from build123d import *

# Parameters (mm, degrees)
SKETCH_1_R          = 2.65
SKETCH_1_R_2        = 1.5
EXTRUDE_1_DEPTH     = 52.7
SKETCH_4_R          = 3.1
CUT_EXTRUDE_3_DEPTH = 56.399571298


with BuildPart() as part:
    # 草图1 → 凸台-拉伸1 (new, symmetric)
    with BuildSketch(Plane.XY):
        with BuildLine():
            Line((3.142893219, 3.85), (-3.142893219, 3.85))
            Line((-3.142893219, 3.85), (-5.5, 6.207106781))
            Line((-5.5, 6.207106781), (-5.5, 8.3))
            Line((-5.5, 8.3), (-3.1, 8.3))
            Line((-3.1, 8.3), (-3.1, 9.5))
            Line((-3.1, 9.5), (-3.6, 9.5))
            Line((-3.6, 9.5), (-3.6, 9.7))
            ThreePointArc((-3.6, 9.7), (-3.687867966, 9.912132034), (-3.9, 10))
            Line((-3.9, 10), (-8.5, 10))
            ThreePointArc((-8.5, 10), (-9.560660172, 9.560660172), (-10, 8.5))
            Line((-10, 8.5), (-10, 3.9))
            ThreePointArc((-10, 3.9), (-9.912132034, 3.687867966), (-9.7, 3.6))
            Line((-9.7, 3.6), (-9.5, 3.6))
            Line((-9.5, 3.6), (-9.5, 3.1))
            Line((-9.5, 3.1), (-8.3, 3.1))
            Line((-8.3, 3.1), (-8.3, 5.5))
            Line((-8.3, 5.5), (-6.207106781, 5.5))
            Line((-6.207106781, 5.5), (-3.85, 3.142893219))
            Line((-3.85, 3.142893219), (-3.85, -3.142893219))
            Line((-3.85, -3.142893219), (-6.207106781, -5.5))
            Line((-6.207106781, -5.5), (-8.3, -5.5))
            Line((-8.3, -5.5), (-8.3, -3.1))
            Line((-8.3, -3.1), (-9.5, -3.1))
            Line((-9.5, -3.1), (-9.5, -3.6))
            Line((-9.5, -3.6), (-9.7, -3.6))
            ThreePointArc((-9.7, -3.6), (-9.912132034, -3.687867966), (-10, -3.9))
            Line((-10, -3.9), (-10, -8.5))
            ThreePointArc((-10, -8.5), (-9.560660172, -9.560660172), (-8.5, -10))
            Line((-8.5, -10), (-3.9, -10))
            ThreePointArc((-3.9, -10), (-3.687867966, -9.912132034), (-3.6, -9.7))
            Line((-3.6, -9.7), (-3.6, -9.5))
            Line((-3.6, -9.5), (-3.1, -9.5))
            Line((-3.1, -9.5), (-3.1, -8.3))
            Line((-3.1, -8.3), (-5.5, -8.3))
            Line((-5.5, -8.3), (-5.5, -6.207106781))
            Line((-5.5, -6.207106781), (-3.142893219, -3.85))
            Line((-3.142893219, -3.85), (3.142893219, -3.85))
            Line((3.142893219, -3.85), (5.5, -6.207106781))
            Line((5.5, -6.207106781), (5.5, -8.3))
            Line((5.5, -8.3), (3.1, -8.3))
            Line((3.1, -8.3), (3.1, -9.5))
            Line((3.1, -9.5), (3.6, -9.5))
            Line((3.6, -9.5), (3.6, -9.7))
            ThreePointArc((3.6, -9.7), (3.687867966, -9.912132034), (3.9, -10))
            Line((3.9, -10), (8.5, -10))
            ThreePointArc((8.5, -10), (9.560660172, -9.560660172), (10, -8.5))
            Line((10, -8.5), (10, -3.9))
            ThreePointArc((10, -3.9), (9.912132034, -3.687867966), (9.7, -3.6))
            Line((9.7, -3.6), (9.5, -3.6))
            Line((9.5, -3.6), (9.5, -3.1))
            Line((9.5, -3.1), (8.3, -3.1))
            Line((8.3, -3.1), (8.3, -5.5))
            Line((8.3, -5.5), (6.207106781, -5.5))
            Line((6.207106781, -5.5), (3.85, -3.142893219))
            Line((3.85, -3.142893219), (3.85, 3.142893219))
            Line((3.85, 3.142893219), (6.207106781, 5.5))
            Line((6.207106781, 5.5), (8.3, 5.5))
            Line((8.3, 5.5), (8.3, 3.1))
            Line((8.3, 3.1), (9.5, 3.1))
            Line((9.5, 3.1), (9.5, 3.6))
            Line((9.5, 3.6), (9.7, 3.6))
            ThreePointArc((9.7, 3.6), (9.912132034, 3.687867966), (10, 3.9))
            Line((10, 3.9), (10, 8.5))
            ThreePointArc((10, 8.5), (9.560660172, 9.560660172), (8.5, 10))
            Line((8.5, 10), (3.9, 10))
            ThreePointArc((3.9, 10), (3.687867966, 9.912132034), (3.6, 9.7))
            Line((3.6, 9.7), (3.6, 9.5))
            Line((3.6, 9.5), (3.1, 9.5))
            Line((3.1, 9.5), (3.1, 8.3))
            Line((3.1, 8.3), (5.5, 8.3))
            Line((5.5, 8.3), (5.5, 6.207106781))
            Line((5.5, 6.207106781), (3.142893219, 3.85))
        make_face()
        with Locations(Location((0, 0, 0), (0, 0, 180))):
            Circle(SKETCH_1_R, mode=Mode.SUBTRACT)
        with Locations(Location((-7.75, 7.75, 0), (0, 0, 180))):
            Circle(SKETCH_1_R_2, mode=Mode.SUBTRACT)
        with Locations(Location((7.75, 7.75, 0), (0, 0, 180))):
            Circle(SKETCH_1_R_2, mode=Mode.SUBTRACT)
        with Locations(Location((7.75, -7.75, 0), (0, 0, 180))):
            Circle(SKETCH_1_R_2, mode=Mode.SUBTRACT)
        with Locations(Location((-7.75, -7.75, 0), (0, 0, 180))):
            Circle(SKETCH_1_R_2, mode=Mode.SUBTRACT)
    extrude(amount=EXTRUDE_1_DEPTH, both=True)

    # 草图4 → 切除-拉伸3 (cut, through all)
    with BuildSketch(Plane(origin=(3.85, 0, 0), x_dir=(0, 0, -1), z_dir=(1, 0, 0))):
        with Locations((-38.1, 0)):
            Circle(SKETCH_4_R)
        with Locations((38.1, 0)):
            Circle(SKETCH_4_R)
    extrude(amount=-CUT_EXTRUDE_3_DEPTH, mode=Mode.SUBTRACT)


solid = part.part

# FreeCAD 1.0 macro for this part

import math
import FreeCAD as App
import Part
import Sketcher

V = App.Vector

doc = App.newDocument("Part")
body = doc.addObject("PartDesign::Body", "Body")

# Sketch on XY plane
sketch1 = doc.addObject("Sketcher::SketchObject", "Sketch")
body.addObject(sketch1)
sketch1.AttachmentSupport = (doc.XY_Plane, [""])
sketch1.MapMode = "FlatFace"
sketch1.addGeometry(Part.LineSegment(V(3.14, 3.85, 0), V(-3.14, 3.85, 0)), False)
sketch1.addGeometry(Part.LineSegment(V(-3.14, 3.85, 0), V(-5.5, 6.21, 0)), False)
sketch1.addGeometry(Part.LineSegment(V(-5.5, 6.21, 0), V(-5.5, 8.3, 0)), False)
sketch1.addGeometry(Part.LineSegment(V(-5.5, 8.3, 0), V(-3.1, 8.3, 0)), False)
sketch1.addGeometry(Part.LineSegment(V(-3.1, 8.3, 0), V(-3.1, 9.5, 0)), False)
sketch1.addGeometry(Part.LineSegment(V(-3.1, 9.5, 0), V(-3.6, 9.5, 0)), False)
sketch1.addGeometry(Part.LineSegment(V(-3.6, 9.5, 0), V(-3.6, 9.7, 0)), False)
sketch1.addGeometry(Part.ArcOfCircle(Part.Circle(V(-3.9, 9.7, 0), V(0, 0, 1), 0.3), math.radians(0), math.radians(90)), False)
sketch1.addGeometry(Part.LineSegment(V(-3.9, 10, 0), V(-8.5, 10, 0)), False)
sketch1.addGeometry(Part.ArcOfCircle(Part.Circle(V(-8.5, 8.5, 0), V(0, 0, 1), 1.5), math.radians(90), math.radians(180)), False)
sketch1.addGeometry(Part.LineSegment(V(-10, 8.5, 0), V(-10, 3.9, 0)), False)
sketch1.addGeometry(Part.ArcOfCircle(Part.Circle(V(-9.7, 3.9, 0), V(0, 0, 1), 0.3), math.radians(-180), math.radians(-90)), False)
sketch1.addGeometry(Part.LineSegment(V(-9.7, 3.6, 0), V(-9.5, 3.6, 0)), False)
sketch1.addGeometry(Part.LineSegment(V(-9.5, 3.6, 0), V(-9.5, 3.1, 0)), False)
sketch1.addGeometry(Part.LineSegment(V(-9.5, 3.1, 0), V(-8.3, 3.1, 0)), False)
sketch1.addGeometry(Part.LineSegment(V(-8.3, 3.1, 0), V(-8.3, 5.5, 0)), False)
sketch1.addGeometry(Part.LineSegment(V(-8.3, 5.5, 0), V(-6.21, 5.5, 0)), False)
sketch1.addGeometry(Part.LineSegment(V(-6.21, 5.5, 0), V(-3.85, 3.14, 0)), False)
sketch1.addGeometry(Part.LineSegment(V(-3.85, 3.14, 0), V(-3.85, -3.14, 0)), False)
sketch1.addGeometry(Part.LineSegment(V(-3.85, -3.14, 0), V(-6.21, -5.5, 0)), False)
sketch1.addGeometry(Part.LineSegment(V(-6.21, -5.5, 0), V(-8.3, -5.5, 0)), False)
sketch1.addGeometry(Part.LineSegment(V(-8.3, -5.5, 0), V(-8.3, -3.1, 0)), False)
sketch1.addGeometry(Part.LineSegment(V(-8.3, -3.1, 0), V(-9.5, -3.1, 0)), False)
sketch1.addGeometry(Part.LineSegment(V(-9.5, -3.1, 0), V(-9.5, -3.6, 0)), False)
sketch1.addGeometry(Part.LineSegment(V(-9.5, -3.6, 0), V(-9.7, -3.6, 0)), False)
sketch1.addGeometry(Part.ArcOfCircle(Part.Circle(V(-9.7, -3.9, 0), V(0, 0, 1), 0.3), math.radians(90), math.radians(180)), False)
sketch1.addGeometry(Part.LineSegment(V(-10, -3.9, 0), V(-10, -8.5, 0)), False)
sketch1.addGeometry(Part.ArcOfCircle(Part.Circle(V(-8.5, -8.5, 0), V(0, 0, 1), 1.5), math.radians(180), math.radians(270)), False)
sketch1.addGeometry(Part.LineSegment(V(-8.5, -10, 0), V(-3.9, -10, 0)), False)
sketch1.addGeometry(Part.ArcOfCircle(Part.Circle(V(-3.9, -9.7, 0), V(0, 0, 1), 0.3), math.radians(-90), math.radians(0)), False)
sketch1.addGeometry(Part.LineSegment(V(-3.6, -9.7, 0), V(-3.6, -9.5, 0)), False)
sketch1.addGeometry(Part.LineSegment(V(-3.6, -9.5, 0), V(-3.1, -9.5, 0)), False)
sketch1.addGeometry(Part.LineSegment(V(-3.1, -9.5, 0), V(-3.1, -8.3, 0)), False)
sketch1.addGeometry(Part.LineSegment(V(-3.1, -8.3, 0), V(-5.5, -8.3, 0)), False)
sketch1.addGeometry(Part.LineSegment(V(-5.5, -8.3, 0), V(-5.5, -6.21, 0)), False)
sketch1.addGeometry(Part.LineSegment(V(-5.5, -6.21, 0), V(-3.14, -3.85, 0)), False)
sketch1.addGeometry(Part.LineSegment(V(-3.14, -3.85, 0), V(3.14, -3.85, 0)), False)
sketch1.addGeometry(Part.LineSegment(V(3.14, -3.85, 0), V(5.5, -6.21, 0)), False)
sketch1.addGeometry(Part.LineSegment(V(5.5, -6.21, 0), V(5.5, -8.3, 0)), False)
sketch1.addGeometry(Part.LineSegment(V(5.5, -8.3, 0), V(3.1, -8.3, 0)), False)
sketch1.addGeometry(Part.LineSegment(V(3.1, -8.3, 0), V(3.1, -9.5, 0)), False)
sketch1.addGeometry(Part.LineSegment(V(3.1, -9.5, 0), V(3.6, -9.5, 0)), False)
sketch1.addGeometry(Part.LineSegment(V(3.6, -9.5, 0), V(3.6, -9.7, 0)), False)
sketch1.addGeometry(Part.ArcOfCircle(Part.Circle(V(3.9, -9.7, 0), V(0, 0, 1), 0.3), math.radians(-180), math.radians(-90)), False)
sketch1.addGeometry(Part.LineSegment(V(3.9, -10, 0), V(8.5, -10, 0)), False)
sketch1.addGeometry(Part.ArcOfCircle(Part.Circle(V(8.5, -8.5, 0), V(0, 0, 1), 1.5), math.radians(-90), math.radians(0)), False)
sketch1.addGeometry(Part.LineSegment(V(10, -8.5, 0), V(10, -3.9, 0)), False)
sketch1.addGeometry(Part.ArcOfCircle(Part.Circle(V(9.7, -3.9, 0), V(0, 0, 1), 0.3), math.radians(0), math.radians(90)), False)
sketch1.addGeometry(Part.LineSegment(V(9.7, -3.6, 0), V(9.5, -3.6, 0)), False)
sketch1.addGeometry(Part.LineSegment(V(9.5, -3.6, 0), V(9.5, -3.1, 0)), False)
sketch1.addGeometry(Part.LineSegment(V(9.5, -3.1, 0), V(8.3, -3.1, 0)), False)
sketch1.addGeometry(Part.LineSegment(V(8.3, -3.1, 0), V(8.3, -5.5, 0)), False)
sketch1.addGeometry(Part.LineSegment(V(8.3, -5.5, 0), V(6.21, -5.5, 0)), False)
sketch1.addGeometry(Part.LineSegment(V(6.21, -5.5, 0), V(3.85, -3.14, 0)), False)
sketch1.addGeometry(Part.LineSegment(V(3.85, -3.14, 0), V(3.85, 3.14, 0)), False)
sketch1.addGeometry(Part.LineSegment(V(3.85, 3.14, 0), V(6.21, 5.5, 0)), False)
sketch1.addGeometry(Part.LineSegment(V(6.21, 5.5, 0), V(8.3, 5.5, 0)), False)
sketch1.addGeometry(Part.LineSegment(V(8.3, 5.5, 0), V(8.3, 3.1, 0)), False)
sketch1.addGeometry(Part.LineSegment(V(8.3, 3.1, 0), V(9.5, 3.1, 0)), False)
sketch1.addGeometry(Part.LineSegment(V(9.5, 3.1, 0), V(9.5, 3.6, 0)), False)
sketch1.addGeometry(Part.LineSegment(V(9.5, 3.6, 0), V(9.7, 3.6, 0)), False)
sketch1.addGeometry(Part.ArcOfCircle(Part.Circle(V(9.7, 3.9, 0), V(0, 0, 1), 0.3), math.radians(-90), math.radians(0)), False)
sketch1.addGeometry(Part.LineSegment(V(10, 3.9, 0), V(10, 8.5, 0)), False)
sketch1.addGeometry(Part.ArcOfCircle(Part.Circle(V(8.5, 8.5, 0), V(0, 0, 1), 1.5), math.radians(0), math.radians(90)), False)
sketch1.addGeometry(Part.LineSegment(V(8.5, 10, 0), V(3.9, 10, 0)), False)
sketch1.addGeometry(Part.ArcOfCircle(Part.Circle(V(3.9, 9.7, 0), V(0, 0, 1), 0.3), math.radians(90), math.radians(180)), False)
sketch1.addGeometry(Part.LineSegment(V(3.6, 9.7, 0), V(3.6, 9.5, 0)), False)
sketch1.addGeometry(Part.LineSegment(V(3.6, 9.5, 0), V(3.1, 9.5, 0)), False)
sketch1.addGeometry(Part.LineSegment(V(3.1, 9.5, 0), V(3.1, 8.3, 0)), False)
sketch1.addGeometry(Part.LineSegment(V(3.1, 8.3, 0), V(5.5, 8.3, 0)), False)
sketch1.addGeometry(Part.LineSegment(V(5.5, 8.3, 0), V(5.5, 6.21, 0)), False)
sketch1.addGeometry(Part.LineSegment(V(5.5, 6.21, 0), V(3.14, 3.85, 0)), False)
sketch1.addGeometry(Part.Circle(V(-7.75, -7.75, 0), V(0, 0, 1), 1.5), False)
sketch1.addGeometry(Part.Circle(V(7.75, -7.75, 0), V(0, 0, 1), 1.5), False)
sketch1.addGeometry(Part.Circle(V(-7.75, 7.75, 0), V(0, 0, 1), 1.5), False)
sketch1.addGeometry(Part.Circle(V(0, 0, 0), V(0, 0, 1), 2.65), False)
sketch1.addGeometry(Part.Circle(V(7.75, 7.75, 0), V(0, 0, 1), 1.5), False)
sketch1.addConstraint(Sketcher.Constraint("Coincident", 0, 2, 1, 1))
sketch1.addConstraint(Sketcher.Constraint("Coincident", 1, 2, 2, 1))
sketch1.addConstraint(Sketcher.Constraint("Coincident", 2, 2, 3, 1))
sketch1.addConstraint(Sketcher.Constraint("Coincident", 3, 2, 4, 1))
sketch1.addConstraint(Sketcher.Constraint("Coincident", 4, 2, 5, 1))
sketch1.addConstraint(Sketcher.Constraint("Coincident", 5, 2, 6, 1))
sketch1.addConstraint(Sketcher.Constraint("Tangent", 6, 2, 7, 1))
sketch1.addConstraint(Sketcher.Constraint("Tangent", 7, 2, 8, 1))
sketch1.addConstraint(Sketcher.Constraint("Tangent", 8, 2, 9, 1))
sketch1.addConstraint(Sketcher.Constraint("Tangent", 9, 2, 10, 1))
sketch1.addConstraint(Sketcher.Constraint("Tangent", 10, 2, 11, 1))
sketch1.addConstraint(Sketcher.Constraint("Tangent", 11, 2, 12, 1))
sketch1.addConstraint(Sketcher.Constraint("Coincident", 12, 2, 13, 1))
sketch1.addConstraint(Sketcher.Constraint("Coincident", 13, 2, 14, 1))
sketch1.addConstraint(Sketcher.Constraint("Coincident", 14, 2, 15, 1))
sketch1.addConstraint(Sketcher.Constraint("Coincident", 15, 2, 16, 1))
sketch1.addConstraint(Sketcher.Constraint("Coincident", 16, 2, 17, 1))
sketch1.addConstraint(Sketcher.Constraint("Coincident", 17, 2, 18, 1))
sketch1.addConstraint(Sketcher.Constraint("Coincident", 18, 2, 19, 1))
sketch1.addConstraint(Sketcher.Constraint("Coincident", 19, 2, 20, 1))
sketch1.addConstraint(Sketcher.Constraint("Coincident", 20, 2, 21, 1))
sketch1.addConstraint(Sketcher.Constraint("Coincident", 21, 2, 22, 1))
sketch1.addConstraint(Sketcher.Constraint("Coincident", 22, 2, 23, 1))
sketch1.addConstraint(Sketcher.Constraint("Coincident", 23, 2, 24, 1))
sketch1.addConstraint(Sketcher.Constraint("Tangent", 24, 2, 25, 1))
sketch1.addConstraint(Sketcher.Constraint("Tangent", 25, 2, 26, 1))
sketch1.addConstraint(Sketcher.Constraint("Tangent", 26, 2, 27, 1))
sketch1.addConstraint(Sketcher.Constraint("Tangent", 27, 2, 28, 1))
sketch1.addConstraint(Sketcher.Constraint("Tangent", 28, 2, 29, 1))
sketch1.addConstraint(Sketcher.Constraint("Tangent", 29, 2, 30, 1))
sketch1.addConstraint(Sketcher.Constraint("Coincident", 30, 2, 31, 1))
sketch1.addConstraint(Sketcher.Constraint("Coincident", 31, 2, 32, 1))
sketch1.addConstraint(Sketcher.Constraint("Coincident", 32, 2, 33, 1))
sketch1.addConstraint(Sketcher.Constraint("Coincident", 33, 2, 34, 1))
sketch1.addConstraint(Sketcher.Constraint("Coincident", 34, 2, 35, 1))
sketch1.addConstraint(Sketcher.Constraint("Coincident", 35, 2, 36, 1))
sketch1.addConstraint(Sketcher.Constraint("Coincident", 36, 2, 37, 1))
sketch1.addConstraint(Sketcher.Constraint("Coincident", 37, 2, 38, 1))
sketch1.addConstraint(Sketcher.Constraint("Coincident", 38, 2, 39, 1))
sketch1.addConstraint(Sketcher.Constraint("Coincident", 39, 2, 40, 1))
sketch1.addConstraint(Sketcher.Constraint("Coincident", 40, 2, 41, 1))
sketch1.addConstraint(Sketcher.Constraint("Coincident", 41, 2, 42, 1))
sketch1.addConstraint(Sketcher.Constraint("Tangent", 42, 2, 43, 1))
sketch1.addConstraint(Sketcher.Constraint("Tangent", 43, 2, 44, 1))
sketch1.addConstraint(Sketcher.Constraint("Tangent", 44, 2, 45, 1))
sketch1.addConstraint(Sketcher.Constraint("Tangent", 45, 2, 46, 1))
sketch1.addConstraint(Sketcher.Constraint("Tangent", 46, 2, 47, 1))
sketch1.addConstraint(Sketcher.Constraint("Tangent", 47, 2, 48, 1))
sketch1.addConstraint(Sketcher.Constraint("Coincident", 48, 2, 49, 1))
sketch1.addConstraint(Sketcher.Constraint("Coincident", 49, 2, 50, 1))
sketch1.addConstraint(Sketcher.Constraint("Coincident", 50, 2, 51, 1))
sketch1.addConstraint(Sketcher.Constraint("Coincident", 51, 2, 52, 1))
sketch1.addConstraint(Sketcher.Constraint("Coincident", 52, 2, 53, 1))
sketch1.addConstraint(Sketcher.Constraint("Coincident", 53, 2, 54, 1))
sketch1.addConstraint(Sketcher.Constraint("Coincident", 54, 2, 55, 1))
sketch1.addConstraint(Sketcher.Constraint("Coincident", 55, 2, 56, 1))
sketch1.addConstraint(Sketcher.Constraint("Coincident", 56, 2, 57, 1))
sketch1.addConstraint(Sketcher.Constraint("Coincident", 57, 2, 58, 1))
sketch1.addConstraint(Sketcher.Constraint("Coincident", 58, 2, 59, 1))
sketch1.addConstraint(Sketcher.Constraint("Coincident", 59, 2, 60, 1))
sketch1.addConstraint(Sketcher.Constraint("Tangent", 60, 2, 61, 1))
sketch1.addConstraint(Sketcher.Constraint("Tangent", 61, 2, 62, 1))
sketch1.addConstraint(Sketcher.Constraint("Tangent", 62, 2, 63, 1))
sketch1.addConstraint(Sketcher.Constraint("Tangent", 63, 2, 64, 1))
sketch1.addConstraint(Sketcher.Constraint("Tangent", 64, 2, 65, 1))
sketch1.addConstraint(Sketcher.Constraint("Tangent", 65, 2, 66, 1))
sketch1.addConstraint(Sketcher.Constraint("Coincident", 66, 2, 67, 1))
sketch1.addConstraint(Sketcher.Constraint("Coincident", 67, 2, 68, 1))
sketch1.addConstraint(Sketcher.Constraint("Coincident", 68, 2, 69, 1))
sketch1.addConstraint(Sketcher.Constraint("Coincident", 69, 2, 70, 1))
sketch1.addConstraint(Sketcher.Constraint("Coincident", 70, 2, 71, 1))
sketch1.addConstraint(Sketcher.Constraint("Coincident", 71, 2, 0, 1))
sketch1.addConstraint(Sketcher.Constraint("Horizontal", 0))
sketch1.addConstraint(Sketcher.Constraint("Vertical", 2))
sketch1.addConstraint(Sketcher.Constraint("Horizontal", 3))
sketch1.addConstraint(Sketcher.Constraint("Vertical", 4))
sketch1.addConstraint(Sketcher.Constraint("Horizontal", 5))
sketch1.addConstraint(Sketcher.Constraint("Vertical", 6))
sketch1.addConstraint(Sketcher.Constraint("Horizontal", 8))
sketch1.addConstraint(Sketcher.Constraint("Vertical", 10))
sketch1.addConstraint(Sketcher.Constraint("Horizontal", 12))
sketch1.addConstraint(Sketcher.Constraint("Vertical", 13))
sketch1.addConstraint(Sketcher.Constraint("Horizontal", 14))
sketch1.addConstraint(Sketcher.Constraint("Vertical", 15))
sketch1.addConstraint(Sketcher.Constraint("Horizontal", 16))
sketch1.addConstraint(Sketcher.Constraint("Vertical", 18))
sketch1.addConstraint(Sketcher.Constraint("Horizontal", 20))
sketch1.addConstraint(Sketcher.Constraint("Vertical", 21))
sketch1.addConstraint(Sketcher.Constraint("Horizontal", 22))
sketch1.addConstraint(Sketcher.Constraint("Vertical", 23))
sketch1.addConstraint(Sketcher.Constraint("Horizontal", 24))
sketch1.addConstraint(Sketcher.Constraint("Vertical", 26))
sketch1.addConstraint(Sketcher.Constraint("Horizontal", 28))
sketch1.addConstraint(Sketcher.Constraint("Vertical", 30))
sketch1.addConstraint(Sketcher.Constraint("Horizontal", 31))
sketch1.addConstraint(Sketcher.Constraint("Vertical", 32))
sketch1.addConstraint(Sketcher.Constraint("Horizontal", 33))
sketch1.addConstraint(Sketcher.Constraint("Vertical", 34))
sketch1.addConstraint(Sketcher.Constraint("Horizontal", 36))
sketch1.addConstraint(Sketcher.Constraint("Vertical", 38))
sketch1.addConstraint(Sketcher.Constraint("Horizontal", 39))
sketch1.addConstraint(Sketcher.Constraint("Vertical", 40))
sketch1.addConstraint(Sketcher.Constraint("Horizontal", 41))
sketch1.addConstraint(Sketcher.Constraint("Vertical", 42))
sketch1.addConstraint(Sketcher.Constraint("Horizontal", 44))
sketch1.addConstraint(Sketcher.Constraint("Vertical", 46))
sketch1.addConstraint(Sketcher.Constraint("Horizontal", 48))
sketch1.addConstraint(Sketcher.Constraint("Vertical", 49))
sketch1.addConstraint(Sketcher.Constraint("Horizontal", 50))
sketch1.addConstraint(Sketcher.Constraint("Vertical", 51))
sketch1.addConstraint(Sketcher.Constraint("Horizontal", 52))
sketch1.addConstraint(Sketcher.Constraint("Vertical", 54))
sketch1.addConstraint(Sketcher.Constraint("Horizontal", 56))
sketch1.addConstraint(Sketcher.Constraint("Vertical", 57))
sketch1.addConstraint(Sketcher.Constraint("Horizontal", 58))
sketch1.addConstraint(Sketcher.Constraint("Vertical", 59))
sketch1.addConstraint(Sketcher.Constraint("Horizontal", 60))
sketch1.addConstraint(Sketcher.Constraint("Vertical", 62))
sketch1.addConstraint(Sketcher.Constraint("Horizontal", 64))
sketch1.addConstraint(Sketcher.Constraint("Vertical", 66))
sketch1.addConstraint(Sketcher.Constraint("Horizontal", 67))
sketch1.addConstraint(Sketcher.Constraint("Vertical", 68))
sketch1.addConstraint(Sketcher.Constraint("Horizontal", 69))
sketch1.addConstraint(Sketcher.Constraint("Vertical", 70))
sketch1.addConstraint(Sketcher.Constraint("Coincident", 75, 3, -1, 1))
sketch1.addConstraint(Sketcher.Constraint("Equal", 7, 11))
sketch1.addConstraint(Sketcher.Constraint("Equal", 11, 25))
sketch1.addConstraint(Sketcher.Constraint("Equal", 9, 27))
sketch1.addConstraint(Sketcher.Constraint("Equal", 25, 29))
sketch1.addConstraint(Sketcher.Constraint("Equal", 29, 43))
sketch1.addConstraint(Sketcher.Constraint("Equal", 27, 45))
sketch1.addConstraint(Sketcher.Constraint("Equal", 43, 47))
sketch1.addConstraint(Sketcher.Constraint("Equal", 47, 61))
sketch1.addConstraint(Sketcher.Constraint("Equal", 45, 63))
sketch1.addConstraint(Sketcher.Constraint("Equal", 61, 65))
sketch1.addConstraint(Sketcher.Constraint("Equal", 63, 72))
sketch1.addConstraint(Sketcher.Constraint("Equal", 72, 73))
sketch1.addConstraint(Sketcher.Constraint("Equal", 73, 74))
sketch1.addConstraint(Sketcher.Constraint("Equal", 74, 76))
sketch1.addConstraint(Sketcher.Constraint("Symmetric", 7, 3, 43, 3, -1, 1))
sketch1.addConstraint(Sketcher.Constraint("Symmetric", 11, 3, 47, 3, -1, 1))
sketch1.addConstraint(Sketcher.Constraint("Symmetric", 25, 3, 61, 3, -1, 1))
sketch1.addConstraint(Sketcher.Constraint("Symmetric", 29, 3, 65, 3, -1, 1))
sketch1.addConstraint(Sketcher.Constraint("Symmetric", 73, 3, 74, 3, -1, 1))
sketch1.addConstraint(Sketcher.Constraint("Symmetric", 72, 3, 76, 3, -1, 1))
sketch1.addConstraint(Sketcher.Constraint("Symmetric", 0, 2, 36, 2, -1, 1))
sketch1.addConstraint(Sketcher.Constraint("Symmetric", 1, 2, 37, 2, -1, 1))
sketch1.addConstraint(Sketcher.Constraint("Symmetric", 3, 2, 39, 2, -1, 1))
sketch1.addConstraint(Sketcher.Constraint("Symmetric", 13, 2, 49, 2, -1, 1))
sketch1.addConstraint(Sketcher.Constraint("Symmetric", 15, 2, 51, 2, -1, 1))
sketch1.addConstraint(Sketcher.Constraint("Symmetric", 17, 2, 53, 2, -1, 1))
sketch1.addConstraint(Sketcher.Constraint("Symmetric", 19, 2, 55, 2, -1, 1))
sketch1.addConstraint(Sketcher.Constraint("Symmetric", 21, 2, 57, 2, -1, 1))
sketch1.addConstraint(Sketcher.Constraint("Symmetric", 31, 2, 67, 2, -1, 1))
sketch1.addConstraint(Sketcher.Constraint("Symmetric", 33, 2, 69, 2, -1, 1))
sketch1.addConstraint(Sketcher.Constraint("Symmetric", 29, 3, 43, 3, -2))
sketch1.addConstraint(Sketcher.Constraint("Symmetric", 25, 3, 47, 3, -2))
sketch1.addConstraint(Sketcher.Constraint("Symmetric", 72, 3, 73, 3, -2))
sketch1.addConstraint(Sketcher.Constraint("Symmetric", 34, 2, 37, 2, -2))
sketch1.addConstraint(Sketcher.Constraint("Symmetric", 32, 2, 39, 2, -2))
sketch1.addConstraint(Sketcher.Constraint("Symmetric", 22, 2, 49, 2, -2))
sketch1.addConstraint(Sketcher.Constraint("Symmetric", 20, 2, 51, 2, -2))
sketch1.addConstraint(Sketcher.Constraint("Parallel", 1, 17))
sketch1.addConstraint(Sketcher.Constraint("Perpendicular", 17, 19))
sketch1.addConstraint(Sketcher.Constraint("Parallel", 19, 35))
sketch1.addConstraint(Sketcher.Constraint("Parallel", 37, 53))
sketch1.addConstraint(Sketcher.Constraint("Perpendicular", 53, 55))
sketch1.addConstraint(Sketcher.Constraint("Parallel", 55, 71))
sketch1.addConstraint(Sketcher.Constraint("Horizontal", 31, 2, 40, 2))
sketch1.addConstraint(Sketcher.Constraint("Horizontal", 18, 2, 53, 2))
sketch1.addConstraint(Sketcher.Constraint("Horizontal", 5, 2, 66, 2))
sketch1.addConstraint(Sketcher.Constraint("Horizontal", 1, 2, 70, 2))
sketch1.addConstraint(Sketcher.Constraint("Vertical", 16, 2, 19, 2))
sketch1.addConstraint(Sketcher.Constraint("Vertical", 49, 2, 58, 2))
sketch1.addConstraint(Sketcher.Constraint("Equal", 56, 2))
sketch1.addConstraint(Sketcher.Constraint("Equal", 58, 4))
sketch1.addConstraint(Sketcher.Constraint("Equal", 60, 6))
sketch1.addConstraint(Sketcher.Constraint("Equal", 64, 10))
sketch1.addConstraint(Sketcher.Constraint("Equal", 67, 13))
sketch1.addConstraint(Sketcher.Constraint("Equal", 69, 15))
sketch1.addConstraint(Sketcher.Constraint("Equal", 36, 18))
sketch1.addConstraint(Sketcher.Constraint("Equal", 1, 17))
sketch1.addConstraint(Sketcher.Constraint("Diameter", 72, 3.0))
sketch1.addConstraint(Sketcher.Constraint("Diameter", 75, 5.3))
sketch1.addConstraint(Sketcher.Constraint("Radius", 7, 0.3))
sketch1.addConstraint(Sketcher.Constraint("DistanceX", 3, 1, 3, 2, 2.4))
sketch1.addConstraint(Sketcher.Constraint("DistanceX", 5, 2, 5, 1, 0.5))
sketch1.addConstraint(Sketcher.Constraint("DistanceX", 8, 2, 8, 1, 4.6))
sketch1.addConstraint(Sketcher.Constraint("DistanceX", 12, 1, 12, 2, 0.2))
sketch1.addConstraint(Sketcher.Constraint("DistanceX", 14, 1, 14, 2, 1.2))
sketch1.addConstraint(Sketcher.Constraint("DistanceY", -1, 1, 7, 2, 10.0))
sketch1.addConstraint(Sketcher.Constraint("DistanceX", 72, 3, -1, 1, 7.75))
sketch1.addConstraint(Sketcher.Constraint("DistanceY", 72, 3, -1, 1, 7.75))
sketch1.addConstraint(Sketcher.Constraint("DistanceY", -1, 1, 0, 2, 3.85))
sketch1.addConstraint(Sketcher.Constraint("DistanceX", 0, 2, 0, 1, 6.285786))
pad1 = doc.addObject("PartDesign::Pad", "Pad")
body.addObject(pad1)
pad1.Profile = sketch1
pad1.Length = 105.4
pad1.Midplane = True

# Sketch on YZ plane
sketch2 = doc.addObject("Sketcher::SketchObject", "Sketch001")
body.addObject(sketch2)
sketch2.AttachmentSupport = (doc.YZ_Plane, [""])
sketch2.MapMode = "FlatFace"
sketch2.AttachmentOffset = App.Placement(V(0, 0, 3.85), App.Rotation())
sketch2.addGeometry(Part.Circle(V(0, 38.1, 0), V(0, 0, 1), 3.1), False)
sketch2.addGeometry(Part.Circle(V(0, -38.1, 0), V(0, 0, 1), 3.1), False)
sketch2.addConstraint(Sketcher.Constraint("Equal", 0, 1))
sketch2.addConstraint(Sketcher.Constraint("Symmetric", 0, 3, 1, 3, -1, 1))
sketch2.addConstraint(Sketcher.Constraint("PointOnObject", 0, 3, -2))
sketch2.addConstraint(Sketcher.Constraint("Diameter", 0, 6.2))
sketch2.addConstraint(Sketcher.Constraint("DistanceY", -1, 1, 0, 3, 38.1))
pocket1 = doc.addObject("PartDesign::Pocket", "Pocket")
body.addObject(pocket1)
pocket1.Profile = sketch2
pocket1.Type = "ThroughAll"

doc.recompute()
